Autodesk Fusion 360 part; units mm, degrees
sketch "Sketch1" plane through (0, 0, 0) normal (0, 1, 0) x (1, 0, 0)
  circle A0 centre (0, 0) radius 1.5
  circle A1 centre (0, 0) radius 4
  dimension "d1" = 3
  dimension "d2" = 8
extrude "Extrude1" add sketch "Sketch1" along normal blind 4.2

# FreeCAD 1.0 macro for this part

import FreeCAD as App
import Part
import Sketcher
from FreeCAD import Vector

doc = App.newDocument("Part")
body = doc.addObject("PartDesign::Body", "Body")

sketch1 = body.newObject("Sketcher::SketchObject", "Sketch")
sketch1.AttachmentSupport = (doc.getObject("XZ_Plane"), [""])
sketch1.MapMode = "FlatFace"
sketch1.addGeometry(Part.Circle(Vector(0, 0, 0), Vector(0, 0, 1), 4), False)
sketch1.addGeometry(Part.Circle(Vector(0, 0, 0), Vector(0, 0, 1), 1.5), False)
sketch1.addConstraint(Sketcher.Constraint("Coincident", 0, 3, -1, 1))
sketch1.addConstraint(Sketcher.Constraint("Coincident", 1, 3, -1, 1))
sketch1.addConstraint(Sketcher.Constraint("Diameter", 0, 8.0))
sketch1.addConstraint(Sketcher.Constraint("Diameter", 1, 3.0))
pad1 = body.newObject("PartDesign::Pad", "Pad")
pad1.Profile = sketch1
pad1.Length = 4.2
pad1.Reversed = True

doc.recompute()
